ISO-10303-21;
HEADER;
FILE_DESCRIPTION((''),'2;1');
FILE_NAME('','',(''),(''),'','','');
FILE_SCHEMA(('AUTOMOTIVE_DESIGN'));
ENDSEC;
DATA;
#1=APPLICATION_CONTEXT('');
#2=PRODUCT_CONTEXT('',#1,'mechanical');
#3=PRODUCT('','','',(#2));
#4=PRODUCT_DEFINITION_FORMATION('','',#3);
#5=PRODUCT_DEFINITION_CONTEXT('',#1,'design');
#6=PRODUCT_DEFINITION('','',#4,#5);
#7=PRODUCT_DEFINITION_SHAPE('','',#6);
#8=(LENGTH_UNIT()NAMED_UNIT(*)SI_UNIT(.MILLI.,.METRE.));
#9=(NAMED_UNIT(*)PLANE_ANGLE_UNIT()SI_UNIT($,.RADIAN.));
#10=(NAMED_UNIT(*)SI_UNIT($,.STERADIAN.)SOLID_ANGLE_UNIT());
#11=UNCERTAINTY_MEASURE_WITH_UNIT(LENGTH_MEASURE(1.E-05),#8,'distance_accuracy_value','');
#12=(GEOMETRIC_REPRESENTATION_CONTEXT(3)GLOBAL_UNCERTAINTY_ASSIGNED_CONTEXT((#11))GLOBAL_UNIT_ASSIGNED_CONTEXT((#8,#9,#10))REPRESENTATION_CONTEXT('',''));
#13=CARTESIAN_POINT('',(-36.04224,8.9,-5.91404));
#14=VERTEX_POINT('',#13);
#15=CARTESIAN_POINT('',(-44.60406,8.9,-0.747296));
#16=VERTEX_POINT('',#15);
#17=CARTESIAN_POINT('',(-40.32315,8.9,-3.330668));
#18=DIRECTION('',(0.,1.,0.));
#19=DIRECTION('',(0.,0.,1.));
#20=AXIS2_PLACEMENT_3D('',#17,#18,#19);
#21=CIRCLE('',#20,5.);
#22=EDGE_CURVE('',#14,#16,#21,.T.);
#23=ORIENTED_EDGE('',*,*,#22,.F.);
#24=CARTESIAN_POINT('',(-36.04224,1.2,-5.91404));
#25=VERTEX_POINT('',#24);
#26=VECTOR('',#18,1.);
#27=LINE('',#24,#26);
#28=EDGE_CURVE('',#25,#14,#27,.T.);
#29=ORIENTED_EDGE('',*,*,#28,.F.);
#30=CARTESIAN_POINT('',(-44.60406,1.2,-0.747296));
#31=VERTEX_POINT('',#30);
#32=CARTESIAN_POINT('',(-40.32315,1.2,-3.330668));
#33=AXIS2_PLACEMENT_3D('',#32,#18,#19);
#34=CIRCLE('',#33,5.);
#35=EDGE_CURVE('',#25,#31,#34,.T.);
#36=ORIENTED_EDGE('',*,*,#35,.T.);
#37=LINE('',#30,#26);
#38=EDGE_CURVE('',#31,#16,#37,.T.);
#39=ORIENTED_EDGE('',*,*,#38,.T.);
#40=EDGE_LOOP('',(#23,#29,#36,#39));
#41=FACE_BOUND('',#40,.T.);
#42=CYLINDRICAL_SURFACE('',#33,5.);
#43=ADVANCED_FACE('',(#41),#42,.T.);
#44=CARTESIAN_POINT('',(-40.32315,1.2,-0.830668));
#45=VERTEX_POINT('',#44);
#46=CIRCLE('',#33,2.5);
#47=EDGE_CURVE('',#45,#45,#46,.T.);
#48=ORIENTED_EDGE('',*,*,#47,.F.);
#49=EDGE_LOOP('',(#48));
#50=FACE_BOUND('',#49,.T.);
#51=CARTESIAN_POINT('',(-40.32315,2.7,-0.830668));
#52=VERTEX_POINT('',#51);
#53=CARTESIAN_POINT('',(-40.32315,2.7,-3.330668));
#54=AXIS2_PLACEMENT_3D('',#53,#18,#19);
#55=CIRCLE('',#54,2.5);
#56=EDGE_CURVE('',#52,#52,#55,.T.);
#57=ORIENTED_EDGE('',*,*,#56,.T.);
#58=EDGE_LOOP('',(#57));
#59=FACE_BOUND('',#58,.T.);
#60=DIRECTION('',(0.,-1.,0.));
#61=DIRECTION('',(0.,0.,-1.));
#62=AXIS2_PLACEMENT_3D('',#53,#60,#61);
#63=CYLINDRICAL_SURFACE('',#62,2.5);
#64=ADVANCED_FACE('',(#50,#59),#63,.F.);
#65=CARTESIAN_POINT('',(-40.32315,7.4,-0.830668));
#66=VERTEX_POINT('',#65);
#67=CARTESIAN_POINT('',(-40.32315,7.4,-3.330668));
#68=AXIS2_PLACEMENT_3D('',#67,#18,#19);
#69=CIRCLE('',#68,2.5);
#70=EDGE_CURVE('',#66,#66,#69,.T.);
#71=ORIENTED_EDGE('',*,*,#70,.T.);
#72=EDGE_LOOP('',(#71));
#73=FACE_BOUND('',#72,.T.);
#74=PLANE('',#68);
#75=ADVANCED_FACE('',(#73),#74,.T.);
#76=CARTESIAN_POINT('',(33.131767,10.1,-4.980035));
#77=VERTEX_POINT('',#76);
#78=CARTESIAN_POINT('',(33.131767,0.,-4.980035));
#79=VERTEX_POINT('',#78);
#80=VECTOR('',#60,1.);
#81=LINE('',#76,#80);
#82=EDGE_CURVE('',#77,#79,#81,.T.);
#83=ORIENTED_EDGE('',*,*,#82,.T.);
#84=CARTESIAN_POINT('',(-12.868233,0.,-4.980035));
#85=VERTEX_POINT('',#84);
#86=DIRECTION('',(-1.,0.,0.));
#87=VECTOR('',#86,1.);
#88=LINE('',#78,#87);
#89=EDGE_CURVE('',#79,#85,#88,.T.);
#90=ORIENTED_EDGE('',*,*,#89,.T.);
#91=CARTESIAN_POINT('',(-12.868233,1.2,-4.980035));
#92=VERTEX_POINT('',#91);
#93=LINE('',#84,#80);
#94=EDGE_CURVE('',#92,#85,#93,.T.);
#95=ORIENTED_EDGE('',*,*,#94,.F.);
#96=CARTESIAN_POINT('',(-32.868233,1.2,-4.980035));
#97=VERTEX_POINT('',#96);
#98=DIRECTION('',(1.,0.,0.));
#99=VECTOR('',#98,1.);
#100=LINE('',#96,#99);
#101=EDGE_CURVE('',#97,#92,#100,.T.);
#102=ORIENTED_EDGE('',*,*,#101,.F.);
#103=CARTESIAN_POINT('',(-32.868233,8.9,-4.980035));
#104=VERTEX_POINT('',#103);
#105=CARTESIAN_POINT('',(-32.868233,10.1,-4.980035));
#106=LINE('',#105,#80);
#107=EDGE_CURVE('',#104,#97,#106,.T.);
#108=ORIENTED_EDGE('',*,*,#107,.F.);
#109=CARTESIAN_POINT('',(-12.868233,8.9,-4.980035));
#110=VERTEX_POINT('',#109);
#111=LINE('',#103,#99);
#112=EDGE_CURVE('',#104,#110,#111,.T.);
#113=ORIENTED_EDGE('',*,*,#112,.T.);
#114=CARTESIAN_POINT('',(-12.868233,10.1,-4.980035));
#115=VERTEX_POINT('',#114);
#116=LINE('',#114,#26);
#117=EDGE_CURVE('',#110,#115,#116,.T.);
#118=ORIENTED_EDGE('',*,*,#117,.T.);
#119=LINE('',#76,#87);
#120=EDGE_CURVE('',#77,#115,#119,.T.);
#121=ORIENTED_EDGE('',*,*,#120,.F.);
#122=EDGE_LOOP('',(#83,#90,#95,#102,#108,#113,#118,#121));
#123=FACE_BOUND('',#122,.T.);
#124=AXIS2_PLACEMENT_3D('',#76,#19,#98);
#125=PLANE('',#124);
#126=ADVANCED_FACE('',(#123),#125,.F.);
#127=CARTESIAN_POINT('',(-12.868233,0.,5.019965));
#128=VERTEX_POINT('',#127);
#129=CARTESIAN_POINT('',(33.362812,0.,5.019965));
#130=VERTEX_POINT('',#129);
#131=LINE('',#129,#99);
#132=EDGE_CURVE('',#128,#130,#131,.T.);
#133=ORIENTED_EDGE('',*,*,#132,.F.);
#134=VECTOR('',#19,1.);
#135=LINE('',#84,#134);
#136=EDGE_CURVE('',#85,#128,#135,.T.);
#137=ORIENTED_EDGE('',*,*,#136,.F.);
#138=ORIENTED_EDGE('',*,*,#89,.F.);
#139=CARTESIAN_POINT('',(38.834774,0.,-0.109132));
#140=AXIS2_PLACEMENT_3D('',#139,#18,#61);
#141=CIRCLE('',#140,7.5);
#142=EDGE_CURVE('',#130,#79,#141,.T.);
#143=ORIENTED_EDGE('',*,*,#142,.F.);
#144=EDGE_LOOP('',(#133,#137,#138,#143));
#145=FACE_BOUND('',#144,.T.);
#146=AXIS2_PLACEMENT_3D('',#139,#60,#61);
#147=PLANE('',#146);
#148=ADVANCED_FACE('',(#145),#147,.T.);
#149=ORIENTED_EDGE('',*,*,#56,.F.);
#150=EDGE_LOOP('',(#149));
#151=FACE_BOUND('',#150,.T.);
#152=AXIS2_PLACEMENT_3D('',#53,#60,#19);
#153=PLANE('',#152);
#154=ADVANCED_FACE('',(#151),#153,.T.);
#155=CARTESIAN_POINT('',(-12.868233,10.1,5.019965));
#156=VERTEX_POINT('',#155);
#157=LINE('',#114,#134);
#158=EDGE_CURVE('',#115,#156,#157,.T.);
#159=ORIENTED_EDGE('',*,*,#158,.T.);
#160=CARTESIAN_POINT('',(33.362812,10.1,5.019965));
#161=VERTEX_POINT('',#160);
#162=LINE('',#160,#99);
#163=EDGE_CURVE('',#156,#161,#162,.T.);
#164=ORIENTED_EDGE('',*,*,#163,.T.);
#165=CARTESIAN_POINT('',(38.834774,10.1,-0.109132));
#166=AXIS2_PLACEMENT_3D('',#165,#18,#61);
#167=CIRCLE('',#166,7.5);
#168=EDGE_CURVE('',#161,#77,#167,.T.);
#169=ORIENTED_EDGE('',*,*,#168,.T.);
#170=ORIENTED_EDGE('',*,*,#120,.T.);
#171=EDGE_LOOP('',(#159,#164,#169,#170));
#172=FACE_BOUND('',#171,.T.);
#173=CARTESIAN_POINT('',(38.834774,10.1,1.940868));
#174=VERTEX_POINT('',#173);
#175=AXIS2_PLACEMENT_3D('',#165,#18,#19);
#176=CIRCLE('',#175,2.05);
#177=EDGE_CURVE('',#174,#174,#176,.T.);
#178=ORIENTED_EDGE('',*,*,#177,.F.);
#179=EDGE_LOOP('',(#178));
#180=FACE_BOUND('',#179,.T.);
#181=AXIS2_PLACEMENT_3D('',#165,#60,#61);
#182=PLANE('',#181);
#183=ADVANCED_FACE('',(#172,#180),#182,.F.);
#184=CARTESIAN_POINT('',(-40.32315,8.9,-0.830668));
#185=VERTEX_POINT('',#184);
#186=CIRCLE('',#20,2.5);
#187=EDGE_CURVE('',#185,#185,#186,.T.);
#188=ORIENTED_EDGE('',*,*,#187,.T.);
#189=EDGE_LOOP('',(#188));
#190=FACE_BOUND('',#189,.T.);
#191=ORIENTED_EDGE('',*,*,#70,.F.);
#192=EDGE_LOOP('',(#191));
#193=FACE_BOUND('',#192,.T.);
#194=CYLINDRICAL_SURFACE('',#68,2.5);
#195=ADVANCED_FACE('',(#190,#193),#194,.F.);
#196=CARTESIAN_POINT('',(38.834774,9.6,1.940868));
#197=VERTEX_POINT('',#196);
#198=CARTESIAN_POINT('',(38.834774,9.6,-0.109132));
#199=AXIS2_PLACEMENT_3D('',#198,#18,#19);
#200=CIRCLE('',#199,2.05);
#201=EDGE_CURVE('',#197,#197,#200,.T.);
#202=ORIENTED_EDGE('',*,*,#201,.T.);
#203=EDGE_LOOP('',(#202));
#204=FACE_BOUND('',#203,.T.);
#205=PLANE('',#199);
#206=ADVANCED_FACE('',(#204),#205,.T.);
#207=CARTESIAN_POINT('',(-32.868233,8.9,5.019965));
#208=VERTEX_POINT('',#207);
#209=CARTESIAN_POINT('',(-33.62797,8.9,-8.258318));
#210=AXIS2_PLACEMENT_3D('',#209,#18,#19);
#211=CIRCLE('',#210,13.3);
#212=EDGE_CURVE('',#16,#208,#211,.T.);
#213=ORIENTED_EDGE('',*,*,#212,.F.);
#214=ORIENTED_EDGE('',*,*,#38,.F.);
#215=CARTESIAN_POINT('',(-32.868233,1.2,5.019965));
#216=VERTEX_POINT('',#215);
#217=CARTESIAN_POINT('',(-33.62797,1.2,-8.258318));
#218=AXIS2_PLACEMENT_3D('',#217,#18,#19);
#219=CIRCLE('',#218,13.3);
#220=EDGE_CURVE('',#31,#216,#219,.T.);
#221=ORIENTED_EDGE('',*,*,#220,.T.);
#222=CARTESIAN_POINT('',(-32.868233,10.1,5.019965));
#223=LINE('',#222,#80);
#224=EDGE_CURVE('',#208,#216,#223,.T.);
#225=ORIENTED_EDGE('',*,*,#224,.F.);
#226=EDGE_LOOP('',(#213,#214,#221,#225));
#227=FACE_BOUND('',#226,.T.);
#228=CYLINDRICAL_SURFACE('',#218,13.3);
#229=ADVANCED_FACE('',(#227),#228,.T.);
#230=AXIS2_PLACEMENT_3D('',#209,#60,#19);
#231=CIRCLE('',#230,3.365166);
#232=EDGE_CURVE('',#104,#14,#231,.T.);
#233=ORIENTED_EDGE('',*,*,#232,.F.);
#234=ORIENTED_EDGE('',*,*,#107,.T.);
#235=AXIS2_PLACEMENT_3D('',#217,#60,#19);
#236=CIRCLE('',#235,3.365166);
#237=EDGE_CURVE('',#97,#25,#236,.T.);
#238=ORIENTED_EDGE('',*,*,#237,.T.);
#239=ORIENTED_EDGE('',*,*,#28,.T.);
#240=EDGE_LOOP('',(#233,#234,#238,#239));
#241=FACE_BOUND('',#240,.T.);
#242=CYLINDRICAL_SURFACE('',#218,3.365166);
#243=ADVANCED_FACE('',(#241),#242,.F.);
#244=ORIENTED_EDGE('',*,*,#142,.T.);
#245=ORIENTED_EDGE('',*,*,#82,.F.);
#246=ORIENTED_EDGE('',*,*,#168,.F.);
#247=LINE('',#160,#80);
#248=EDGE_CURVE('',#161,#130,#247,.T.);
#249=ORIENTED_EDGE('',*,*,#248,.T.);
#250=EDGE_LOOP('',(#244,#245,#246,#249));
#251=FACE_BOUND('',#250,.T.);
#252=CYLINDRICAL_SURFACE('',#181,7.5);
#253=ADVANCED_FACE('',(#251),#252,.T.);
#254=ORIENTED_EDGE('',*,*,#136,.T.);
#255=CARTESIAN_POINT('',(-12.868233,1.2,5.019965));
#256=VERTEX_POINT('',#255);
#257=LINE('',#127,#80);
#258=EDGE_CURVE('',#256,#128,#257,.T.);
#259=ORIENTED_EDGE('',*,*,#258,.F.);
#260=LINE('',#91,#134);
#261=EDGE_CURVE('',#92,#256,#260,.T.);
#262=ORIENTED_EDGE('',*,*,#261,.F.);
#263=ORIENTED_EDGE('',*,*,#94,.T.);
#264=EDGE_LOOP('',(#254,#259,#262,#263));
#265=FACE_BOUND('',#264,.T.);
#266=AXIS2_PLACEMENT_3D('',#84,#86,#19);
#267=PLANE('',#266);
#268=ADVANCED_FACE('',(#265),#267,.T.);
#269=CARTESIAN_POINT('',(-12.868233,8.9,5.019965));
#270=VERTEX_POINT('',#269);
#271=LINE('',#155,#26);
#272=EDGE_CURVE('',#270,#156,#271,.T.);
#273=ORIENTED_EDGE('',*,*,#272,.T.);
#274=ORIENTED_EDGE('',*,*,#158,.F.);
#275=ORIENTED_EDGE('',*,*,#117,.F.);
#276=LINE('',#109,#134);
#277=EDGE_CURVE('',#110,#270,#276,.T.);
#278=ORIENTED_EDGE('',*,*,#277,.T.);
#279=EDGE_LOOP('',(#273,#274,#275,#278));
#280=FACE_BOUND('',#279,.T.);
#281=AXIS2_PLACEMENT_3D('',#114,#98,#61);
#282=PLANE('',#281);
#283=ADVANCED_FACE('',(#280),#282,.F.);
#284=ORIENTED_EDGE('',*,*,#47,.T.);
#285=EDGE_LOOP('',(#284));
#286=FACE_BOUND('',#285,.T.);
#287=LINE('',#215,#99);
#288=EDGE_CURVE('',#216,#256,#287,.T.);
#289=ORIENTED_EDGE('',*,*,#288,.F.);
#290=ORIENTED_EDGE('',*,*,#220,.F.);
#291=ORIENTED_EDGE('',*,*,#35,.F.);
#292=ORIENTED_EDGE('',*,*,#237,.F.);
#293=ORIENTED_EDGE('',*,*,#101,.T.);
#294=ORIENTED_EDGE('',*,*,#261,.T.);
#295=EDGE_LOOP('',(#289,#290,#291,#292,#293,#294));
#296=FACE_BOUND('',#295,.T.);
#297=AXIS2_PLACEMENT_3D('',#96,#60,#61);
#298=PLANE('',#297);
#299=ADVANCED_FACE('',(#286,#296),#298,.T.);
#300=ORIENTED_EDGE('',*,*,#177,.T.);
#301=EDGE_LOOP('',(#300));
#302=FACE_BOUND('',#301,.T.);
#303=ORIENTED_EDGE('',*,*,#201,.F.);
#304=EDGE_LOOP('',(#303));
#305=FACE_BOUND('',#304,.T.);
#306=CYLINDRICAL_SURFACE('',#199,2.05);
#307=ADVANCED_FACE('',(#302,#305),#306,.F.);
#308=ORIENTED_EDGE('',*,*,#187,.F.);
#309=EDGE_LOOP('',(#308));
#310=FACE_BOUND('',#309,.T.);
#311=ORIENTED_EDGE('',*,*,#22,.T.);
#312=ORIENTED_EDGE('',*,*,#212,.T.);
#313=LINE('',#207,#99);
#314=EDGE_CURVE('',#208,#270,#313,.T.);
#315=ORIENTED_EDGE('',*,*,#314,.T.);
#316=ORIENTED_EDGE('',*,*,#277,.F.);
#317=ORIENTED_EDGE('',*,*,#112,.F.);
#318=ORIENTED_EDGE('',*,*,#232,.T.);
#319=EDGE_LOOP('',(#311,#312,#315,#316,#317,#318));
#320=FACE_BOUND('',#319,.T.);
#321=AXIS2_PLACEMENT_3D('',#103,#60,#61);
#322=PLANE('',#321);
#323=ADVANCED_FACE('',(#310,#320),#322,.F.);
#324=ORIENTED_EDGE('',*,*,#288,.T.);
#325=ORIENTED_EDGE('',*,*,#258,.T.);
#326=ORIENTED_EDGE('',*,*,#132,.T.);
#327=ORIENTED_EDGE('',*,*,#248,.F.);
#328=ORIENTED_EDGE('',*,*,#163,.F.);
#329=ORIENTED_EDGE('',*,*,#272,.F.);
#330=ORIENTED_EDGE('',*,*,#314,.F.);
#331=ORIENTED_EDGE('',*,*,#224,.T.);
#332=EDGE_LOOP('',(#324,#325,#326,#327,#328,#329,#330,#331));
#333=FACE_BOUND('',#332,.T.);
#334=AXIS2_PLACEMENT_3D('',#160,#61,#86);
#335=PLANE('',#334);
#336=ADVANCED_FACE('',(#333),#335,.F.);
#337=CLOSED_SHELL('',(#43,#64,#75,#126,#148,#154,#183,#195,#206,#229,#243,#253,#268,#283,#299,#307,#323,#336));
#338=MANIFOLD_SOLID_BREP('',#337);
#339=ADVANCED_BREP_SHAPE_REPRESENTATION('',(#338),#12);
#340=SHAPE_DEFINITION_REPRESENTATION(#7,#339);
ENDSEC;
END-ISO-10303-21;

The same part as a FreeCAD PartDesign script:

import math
import FreeCAD as App
import Part
import Sketcher
from FreeCAD import Vector


def add_polygon(sketch, points):
    """Adds a closed chain of lines whose ends are joined by coincident constraints."""
    first, n = sketch.GeometryCount, len(points)
    for a, b in zip(points, points[1:] + points[:1]):
        sketch.addGeometry(Part.LineSegment(App.Vector(*a, 0), App.Vector(*b, 0)), False)
    for i in range(n):
        sketch.addConstraint(Sketcher.Constraint("Coincident", first + i, 2, first + (i + 1) % n, 1))

doc = App.newDocument("Part")
body = doc.addObject("PartDesign::Body", "Body")

sketch1 = body.newObject("Sketcher::SketchObject", "Sketch")
sketch1.AttachmentSupport = (doc.getObject("XZ_Plane"), [""])
sketch1.MapMode = "FlatFace"
sketch1.addGeometry([
    Part.LineSegment(Vector(-33, 5, 0), Vector(33, 5, 0)),
    Part.ArcOfCircle(Part.Circle(Vector(39, 0, 0), Vector(0, 0, 1), 8), math.radians(-139), math.radians(137)),
    Part.LineSegment(Vector(33, -5, 0), Vector(-33, -5, 0)),
    Part.LineSegment(Vector(-33, -5, 0), Vector(-33, 5, 0)),
], False)
sketch1.addConstraint([
    Sketcher.Constraint("Coincident", 0, 2, 1, 2),
    Sketcher.Constraint("Coincident", 1, 1, 2, 1),
    Sketcher.Constraint("Coincident", 2, 2, 3, 1),
    Sketcher.Constraint("Coincident", 3, 2, 0, 1),
    Sketcher.Constraint("Horizontal", 0),
    Sketcher.Constraint("Horizontal", 2),
    Sketcher.Constraint("Vertical", 3),
    Sketcher.Constraint("Radius", 1, 7.5),
    Sketcher.Constraint("DistanceX", 2, 2, 2, 1, 66.0),
    Sketcher.Constraint("DistanceY", 3, 1, 3, 2, 10.0),
    Sketcher.Constraint("DistanceX", 0, 1, 0, 2, 66.231046),
    Sketcher.Constraint("DistanceY", 1, 3, -1, 1, 0.109132),
    Sketcher.Constraint("DistanceX", -1, 1, 1, 3, 38.834774),
])
pad1 = body.newObject("PartDesign::Pad", "Pad")
pad1.Profile = sketch1
pad1.Length = 10.1
pad1.Reversed = True

sketch2 = body.newObject("Sketcher::SketchObject", "Sketch001")
sketch2.AttachmentSupport = (doc.getObject("XY_Plane"), [""])
sketch2.MapMode = "FlatFace"
sketch2.AttachmentOffset = App.Placement(Vector(0, 0, 5.019965), App.Rotation())
add_polygon(sketch2, [(-32.9, 10.1), (-32.9, 8.9), (-12.9, 8.9), (-12.9, 10.1)])
sketch2.addConstraint([
    Sketcher.Constraint("Vertical", 0),
    Sketcher.Constraint("Horizontal", 1),
    Sketcher.Constraint("Vertical", 2),
    Sketcher.Constraint("Horizontal", 3),
    Sketcher.Constraint("DistanceX", 1, 1, 1, 2, 20.0),
    Sketcher.Constraint("DistanceY", 0, 2, 0, 1, 1.2),
    Sketcher.Constraint("DistanceY", -1, 1, 0, 2, 8.9),
    Sketcher.Constraint("DistanceX", 0, 2, -1, 1, 32.868233),
])
pocket1 = body.newObject("PartDesign::Pocket", "Pocket")
pocket1.Profile = sketch2
pocket1.Length = 10
doc.recompute()

datumplane = body.newObject("PartDesign::Plane", "DatumPlane")
datumplane.AttachmentSupport = (doc.getObject("XZ_Plane"), [""])
datumplane.MapMode = "FlatFace"
datumplane.AttachmentOffset = App.Placement(Vector(0, 0, -5.05), App.Rotation())
mirrored = body.newObject("PartDesign::Mirrored", "Mirrored")
mirrored.Originals = [pocket1]
mirrored.MirrorPlane = (datumplane, [""])
body.Tip = mirrored

sketch3 = body.newObject("Sketcher::SketchObject", "Sketch002")
sketch3.AttachmentSupport = (doc.getObject("XZ_Plane"), [""])
sketch3.MapMode = "FlatFace"
sketch3.AttachmentOffset = App.Placement(Vector(0, 0, -1.2), App.Rotation())
sketch3.addGeometry([
    Part.LineSegment(Vector(-32.9, 5, 0), Vector(-32.9, -5, 0)),
    Part.ArcOfCircle(Part.Circle(Vector(-33.6, -8.3, 0), Vector(0, 0, 1), 3.4), math.radians(77), math.radians(136)),
    Part.ArcOfCircle(Part.Circle(Vector(-40.3, -3.3, 0), Vector(0, 0, 1), 5), math.radians(149), math.radians(329)),
    Part.ArcOfCircle(Part.Circle(Vector(-33.6, -8.3, 0), Vector(0, 0, 1), 13.3), math.radians(87), math.radians(146)),
], False)
sketch3.addConstraint([
    Sketcher.Constraint("Coincident", 0, 2, 1, 1),
    Sketcher.Constraint("Coincident", 1, 2, 2, 2),
    Sketcher.Constraint("Coincident", 2, 1, 3, 2),
    Sketcher.Constraint("Coincident", 3, 1, 0, 1),
    Sketcher.Constraint("Vertical", 0),
    Sketcher.Constraint("Coincident", 3, 3, 1, 3),
    Sketcher.Constraint("Radius", 2, 5.0),
    Sketcher.Constraint("Radius", 3, 13.3),
    Sketcher.Constraint("DistanceY", 0, 2, 0, 1, 10.0),
    Sketcher.Constraint("Radius", 1, 3.365166),
    Sketcher.Constraint("DistanceX", 1, 3, -1, 1, 33.62797),
    Sketcher.Constraint("DistanceY", 1, 3, -1, 1, 8.258318),
    Sketcher.Constraint("DistanceX", 2, 3, -1, 1, 40.32315),
    Sketcher.Constraint("DistanceX", 1, 2, -1, 1, 36.04224),
])
pad2 = body.newObject("PartDesign::Pad", "Pad001")
pad2.Profile = sketch3
pad2.Length = 7.7
pad2.Reversed = True

sketch4 = body.newObject("Sketcher::SketchObject", "Sketch003")
sketch4.AttachmentSupport = (doc.getObject("XZ_Plane"), [""])
sketch4.MapMode = "FlatFace"
sketch4.AttachmentOffset = App.Placement(Vector(0, 0, -8.9), App.Rotation())
sketch4.addGeometry(Part.Circle(Vector(-40.3, -3.3, 0), Vector(0, 0, 1), 2.5), False)
sketch4.addConstraint([
    Sketcher.Constraint("Diameter", 0, 5.0),
    Sketcher.Constraint("DistanceX", 0, 3, -1, 1, 40.32315),
    Sketcher.Constraint("DistanceY", 0, 3, -1, 1, 3.330668),
])
pocket2 = body.newObject("PartDesign::Pocket", "Pocket001")
pocket2.Profile = sketch4
pocket2.Length = 1.5
pocket2.Reversed = True
doc.recompute()

datumplane2 = body.newObject("PartDesign::Plane", "DatumPlane001")
datumplane2.AttachmentSupport = (doc.getObject("XZ_Plane"), [""])
datumplane2.MapMode = "FlatFace"
datumplane2.AttachmentOffset = App.Placement(Vector(0, 0, -5.05), App.Rotation())
mirrored2 = body.newObject("PartDesign::Mirrored", "Mirrored001")
mirrored2.Originals = [pocket2]
mirrored2.MirrorPlane = (datumplane2, [""])
body.Tip = mirrored2

sketch5 = body.newObject("Sketcher::SketchObject", "Sketch004")
sketch5.AttachmentSupport = (doc.getObject("XZ_Plane"), [""])
sketch5.MapMode = "FlatFace"
sketch5.AttachmentOffset = App.Placement(Vector(0, 0, -10.1), App.Rotation())
sketch5.addGeometry(Part.Circle(Vector(38.8, -0.1, 0), Vector(0, 0, 1), 2), False)
sketch5.addConstraint([
    Sketcher.Constraint("Diameter", 0, 4.1),
    Sketcher.Constraint("DistanceY", 0, 3, -1, 1, 0.109132),
    Sketcher.Constraint("DistanceX", -1, 1, 0, 3, 38.834774),
])
pocket3 = body.newObject("PartDesign::Pocket", "Pocket002")
pocket3.Profile = sketch5
pocket3.Length = 0.5
pocket3.Reversed = True

doc.recompute()
